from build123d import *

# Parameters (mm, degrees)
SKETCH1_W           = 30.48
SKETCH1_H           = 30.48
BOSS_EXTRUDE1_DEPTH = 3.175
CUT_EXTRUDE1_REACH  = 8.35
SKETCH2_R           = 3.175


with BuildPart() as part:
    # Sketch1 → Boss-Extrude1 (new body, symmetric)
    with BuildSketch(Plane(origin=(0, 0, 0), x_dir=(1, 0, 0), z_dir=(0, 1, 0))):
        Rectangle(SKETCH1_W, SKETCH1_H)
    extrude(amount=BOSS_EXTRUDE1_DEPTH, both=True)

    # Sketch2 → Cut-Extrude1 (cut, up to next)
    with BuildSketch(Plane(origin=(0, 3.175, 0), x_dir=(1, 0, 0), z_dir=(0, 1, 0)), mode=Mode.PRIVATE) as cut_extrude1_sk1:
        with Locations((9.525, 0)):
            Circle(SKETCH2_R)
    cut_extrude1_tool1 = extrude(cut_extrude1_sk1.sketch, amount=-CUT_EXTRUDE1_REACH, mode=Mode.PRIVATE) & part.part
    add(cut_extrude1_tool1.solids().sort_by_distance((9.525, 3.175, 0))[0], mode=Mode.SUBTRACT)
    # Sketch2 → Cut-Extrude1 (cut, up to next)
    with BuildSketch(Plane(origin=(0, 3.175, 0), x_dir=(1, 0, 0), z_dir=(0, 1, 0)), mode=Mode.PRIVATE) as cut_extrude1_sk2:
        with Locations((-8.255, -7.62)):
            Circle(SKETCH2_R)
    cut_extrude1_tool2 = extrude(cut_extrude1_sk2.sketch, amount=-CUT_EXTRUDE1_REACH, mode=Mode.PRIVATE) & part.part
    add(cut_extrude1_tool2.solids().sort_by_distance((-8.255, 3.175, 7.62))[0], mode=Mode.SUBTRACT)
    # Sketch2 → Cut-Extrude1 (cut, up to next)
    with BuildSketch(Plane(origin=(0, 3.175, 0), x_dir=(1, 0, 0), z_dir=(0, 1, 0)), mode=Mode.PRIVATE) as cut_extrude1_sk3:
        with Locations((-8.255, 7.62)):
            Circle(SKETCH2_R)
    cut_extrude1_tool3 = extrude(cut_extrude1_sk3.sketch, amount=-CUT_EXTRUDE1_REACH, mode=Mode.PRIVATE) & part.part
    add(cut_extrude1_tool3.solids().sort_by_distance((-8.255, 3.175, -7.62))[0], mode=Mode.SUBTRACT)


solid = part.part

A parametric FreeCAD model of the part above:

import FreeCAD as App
import Part
import Sketcher
from FreeCAD import Vector
Q = App.Units.Quantity


def add_polygon(sketch, points):
    """Adds a closed chain of lines whose ends are joined by coincident constraints."""
    first, n = sketch.GeometryCount, len(points)
    for a, b in zip(points, points[1:] + points[:1]):
        sketch.addGeometry(Part.LineSegment(App.Vector(*a, 0), App.Vector(*b, 0)), False)
    for i in range(n):
        sketch.addConstraint(Sketcher.Constraint("Coincident", first + i, 2, first + (i + 1) % n, 1))

doc = App.newDocument("Part")
body = doc.addObject("PartDesign::Body", "Body")

# Sketch on XZ plane
sketch1 = body.newObject("Sketcher::SketchObject", "Sketch")
sketch1.AttachmentSupport = (doc.getObject("XZ_Plane"), [""])
sketch1.MapMode = "FlatFace"
add_polygon(sketch1, [(-15, -15), (-15, 15), (15, 15), (15, -15)])  # lines 0-3
sketch1.addConstraint([
    Sketcher.Constraint("Vertical", 0),
    Sketcher.Constraint("Horizontal", 1),
    Sketcher.Constraint("Vertical", 2),
    Sketcher.Constraint("Horizontal", 3),
    Sketcher.Constraint("Symmetric", 0, 2, 2, 2, -1, 1),
    Sketcher.Constraint("Equal", 3, 0),
    Sketcher.Constraint("DistanceX", 1, 1, 1, 2, Q("1.2 in")),
])
pad1 = body.newObject("PartDesign::Pad", "Pad")
pad1.Profile = sketch1
pad1.Length = Q("0.25 in")
pad1.Midplane = True

# Sketch on XZ plane
sketch2 = body.newObject("Sketcher::SketchObject", "Sketch001")
sketch2.AttachmentSupport = (doc.getObject("XZ_Plane"), [""])
sketch2.MapMode = "FlatFace"
sketch2.AttachmentOffset = App.Placement(Vector(0, 0, -0.125 * 25.4), App.Rotation())
sketch2.addGeometry(Part.Circle(Vector(9.5, 0, 0), Vector(0, 0, 1), 3.2), False)
sketch2.addConstraint([
    Sketcher.Constraint("PointOnObject", 0, 3, -1),
    Sketcher.Constraint("Diameter", 0, Q("0.25 in")),
    Sketcher.Constraint("DistanceX", -1, 1, 0, 3, Q("0.375 in")),
])
pocket1 = body.newObject("PartDesign::Pocket", "Pocket")
pocket1.Profile = sketch2
pocket1.Type = "UpToFirst"
pocket1.Reversed = True

# Sketch on XZ plane
sketch3 = body.newObject("Sketcher::SketchObject", "Sketch002")
sketch3.AttachmentSupport = (doc.getObject("XZ_Plane"), [""])
sketch3.MapMode = "FlatFace"
sketch3.AttachmentOffset = App.Placement(Vector(0, 0, -0.125 * 25.4), App.Rotation())
sketch3.addGeometry(Part.Circle(Vector(-8.3, 7.6, 0), Vector(0, 0, 1), 3.2), False)
sketch3.addConstraint([
    Sketcher.Constraint("Diameter", 0, Q("0.25 in")),
    Sketcher.Constraint("DistanceY", -1, 1, 0, 3, Q("0.3 in")),
    Sketcher.Constraint("DistanceX", 0, 3, -1, 1, Q("0.325 in")),
])
pocket2 = body.newObject("PartDesign::Pocket", "Pocket001")
pocket2.Profile = sketch3
pocket2.Type = "UpToFirst"
pocket2.Reversed = True

# Sketch on XZ plane
sketch4 = body.newObject("Sketcher::SketchObject", "Sketch003")
sketch4.AttachmentSupport = (doc.getObject("XZ_Plane"), [""])
sketch4.MapMode = "FlatFace"
sketch4.AttachmentOffset = App.Placement(Vector(0, 0, -0.125 * 25.4), App.Rotation())
sketch4.addGeometry(Part.Circle(Vector(-8.3, -7.6, 0), Vector(0, 0, 1), 3.2), False)
sketch4.addConstraint([
    Sketcher.Constraint("Diameter", 0, Q("0.25 in")),
    Sketcher.Constraint("DistanceY", 0, 3, -1, 1, Q("0.3 in")),
    Sketcher.Constraint("DistanceX", 0, 3, -1, 1, Q("0.325 in")),
])
pocket3 = body.newObject("PartDesign::Pocket", "Pocket002")
pocket3.Profile = sketch4
pocket3.Type = "UpToFirst"
pocket3.Reversed = True

doc.recompute()
